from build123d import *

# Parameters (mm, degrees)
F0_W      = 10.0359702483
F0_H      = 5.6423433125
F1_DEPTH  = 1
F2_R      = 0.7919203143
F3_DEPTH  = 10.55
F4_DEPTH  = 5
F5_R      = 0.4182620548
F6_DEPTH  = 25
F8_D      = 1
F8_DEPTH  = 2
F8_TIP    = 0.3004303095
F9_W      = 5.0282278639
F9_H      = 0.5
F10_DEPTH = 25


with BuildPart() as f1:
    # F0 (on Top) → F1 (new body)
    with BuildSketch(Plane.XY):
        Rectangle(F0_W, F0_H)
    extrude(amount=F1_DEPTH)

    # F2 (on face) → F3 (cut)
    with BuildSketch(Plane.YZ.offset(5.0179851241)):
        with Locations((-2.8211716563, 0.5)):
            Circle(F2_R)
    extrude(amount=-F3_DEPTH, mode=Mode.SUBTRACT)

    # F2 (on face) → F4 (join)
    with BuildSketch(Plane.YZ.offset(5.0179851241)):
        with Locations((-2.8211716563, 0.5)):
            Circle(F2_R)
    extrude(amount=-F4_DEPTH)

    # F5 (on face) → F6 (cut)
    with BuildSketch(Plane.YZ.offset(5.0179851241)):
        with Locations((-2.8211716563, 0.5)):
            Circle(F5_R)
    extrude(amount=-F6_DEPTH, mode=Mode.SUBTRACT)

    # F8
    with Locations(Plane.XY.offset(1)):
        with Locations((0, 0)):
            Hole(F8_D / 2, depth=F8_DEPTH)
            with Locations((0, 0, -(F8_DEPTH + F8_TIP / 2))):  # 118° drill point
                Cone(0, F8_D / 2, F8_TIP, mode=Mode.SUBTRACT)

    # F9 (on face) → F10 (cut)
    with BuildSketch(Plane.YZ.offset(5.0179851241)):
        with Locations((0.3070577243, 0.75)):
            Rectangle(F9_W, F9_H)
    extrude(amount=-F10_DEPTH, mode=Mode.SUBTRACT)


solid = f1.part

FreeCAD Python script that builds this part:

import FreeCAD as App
import Part
import Sketcher

V = App.Vector

doc = App.newDocument("Part")
body = doc.addObject("PartDesign::Body", "Body")

# Sketch on XY plane
sketch1 = body.newObject("Sketcher::SketchObject", "Sketch")
sketch1.AttachmentSupport = (doc.getObject("XY_Plane"), [""])
sketch1.MapMode = "FlatFace"
sketch1.addGeometry([
    Part.LineSegment(V(-5, 3, 0), V(-5, -3, 0)),
    Part.LineSegment(V(-5, -3, 0), V(5, -3, 0)),
    Part.LineSegment(V(5, -3, 0), V(5, 3, 0)),
    Part.LineSegment(V(5, 3, 0), V(-5, 3, 0)),
], False)
sketch1.addConstraint([
    Sketcher.Constraint("Coincident", 0, 2, 1, 1),
    Sketcher.Constraint("Coincident", 1, 2, 2, 1),
    Sketcher.Constraint("Coincident", 2, 2, 3, 1),
    Sketcher.Constraint("Coincident", 3, 2, 0, 1),
    Sketcher.Constraint("Vertical", 0),
    Sketcher.Constraint("Horizontal", 1),
    Sketcher.Constraint("Vertical", 2),
    Sketcher.Constraint("Horizontal", 3),
    Sketcher.Constraint("Symmetric", 0, 2, 2, 2, -1, 1),
    Sketcher.Constraint("DistanceX", 1, 1, 1, 2, 10.03597),
    Sketcher.Constraint("DistanceY", 0, 2, 0, 1, 5.642343),
])
pad1 = body.newObject("PartDesign::Pad", "Pad")
pad1.Profile = sketch1
pad1.Length = 1

# Sketch on YZ plane
sketch2 = body.newObject("Sketcher::SketchObject", "Sketch001")
sketch2.AttachmentSupport = (doc.getObject("YZ_Plane"), [""])
sketch2.MapMode = "FlatFace"
sketch2.AttachmentOffset = App.Placement(V(0, 0, 5.017985), App.Rotation())
sketch2.addGeometry(Part.Circle(V(-2.8, 0.5, 0), V(0, 0, 1), 0.8), False)
sketch2.addConstraint([
    Sketcher.Constraint("DistanceY", -1, 1, 0, 3, 0.5),
    Sketcher.Constraint("Diameter", 0, 1.583841),
    Sketcher.Constraint("DistanceX", 0, 3, -1, 1, 2.821172),
])
pocket1 = body.newObject("PartDesign::Pocket", "Pocket")
pocket1.Profile = sketch2
pocket1.Length = 10.55

# Sketch on YZ plane
sketch3 = body.newObject("Sketcher::SketchObject", "Sketch002")
sketch3.AttachmentSupport = (doc.getObject("YZ_Plane"), [""])
sketch3.MapMode = "FlatFace"
sketch3.AttachmentOffset = App.Placement(V(0, 0, 5.017985), App.Rotation())
sketch3.addGeometry(Part.Circle(V(-2.8, 0.5, 0), V(0, 0, 1), 0.8), False)
sketch3.addConstraint([
    Sketcher.Constraint("DistanceY", -1, 1, 0, 3, 0.5),
    Sketcher.Constraint("Diameter", 0, 1.583841),
    Sketcher.Constraint("DistanceX", 0, 3, -1, 1, 2.821172),
])
pad2 = body.newObject("PartDesign::Pad", "Pad001")
pad2.Profile = sketch3
pad2.Length = 5
pad2.Reversed = True

# Sketch on YZ plane
sketch4 = body.newObject("Sketcher::SketchObject", "Sketch003")
sketch4.AttachmentSupport = (doc.getObject("YZ_Plane"), [""])
sketch4.MapMode = "FlatFace"
sketch4.AttachmentOffset = App.Placement(V(0, 0, 5.017985), App.Rotation())
sketch4.addGeometry(Part.Circle(V(-2.82, 0.5, 0), V(0, 0, 1), 0.42), False)
sketch4.addConstraint([
    Sketcher.Constraint("DistanceY", -1, 1, 0, 3, 0.5),
    Sketcher.Constraint("Diameter", 0, 0.836524),
    Sketcher.Constraint("DistanceX", 0, 3, -1, 1, 2.821172),
])
pocket2 = body.newObject("PartDesign::Pocket", "Pocket001")
pocket2.Profile = sketch4
pocket2.Length = 25

# Sketch on XY plane
sketch5 = body.newObject("Sketcher::SketchObject", "Sketch004")
sketch5.AttachmentSupport = (doc.getObject("XY_Plane"), [""])
sketch5.MapMode = "FlatFace"
sketch5.AttachmentOffset = App.Placement(V(0, 0, 1), App.Rotation())
sketch5.addGeometry(Part.Circle(V(0, 0, 0), V(0, 0, 1), 0.5), False)
sketch5.addConstraint([
    Sketcher.Constraint("Coincident", 0, 3, -1, 1),
    Sketcher.Constraint("Diameter", 0, 1.0),
])
doc.recompute()
hole = body.newObject("PartDesign::Hole", "Hole")
hole.Profile = sketch5
hole.ThreadType = "None"
hole.Diameter = 1
hole.DepthType = "Dimension"
hole.Depth = 2
hole.DrillPoint = "Angled"
hole.DrillPointAngle = 118

# Sketch on YZ plane
sketch6 = body.newObject("Sketcher::SketchObject", "Sketch005")
sketch6.AttachmentSupport = (doc.getObject("YZ_Plane"), [""])
sketch6.MapMode = "FlatFace"
sketch6.AttachmentOffset = App.Placement(V(0, 0, 5.017985), App.Rotation())
sketch6.addGeometry([
    Part.LineSegment(V(-2.2, 1, 0), V(-2.2, 0.5, 0)),
    Part.LineSegment(V(-2.2, 0.5, 0), V(2.8, 0.5, 0)),
    Part.LineSegment(V(2.8, 0.5, 0), V(2.8, 1, 0)),
    Part.LineSegment(V(2.8, 1, 0), V(-2.2, 1, 0)),
], False)
sketch6.addConstraint([
    Sketcher.Constraint("Coincident", 0, 2, 1, 1),
    Sketcher.Constraint("Coincident", 1, 2, 2, 1),
    Sketcher.Constraint("Coincident", 2, 2, 3, 1),
    Sketcher.Constraint("Coincident", 3, 2, 0, 1),
    Sketcher.Constraint("Vertical", 0),
    Sketcher.Constraint("Horizontal", 1),
    Sketcher.Constraint("Vertical", 2),
    Sketcher.Constraint("Horizontal", 3),
    Sketcher.Constraint("DistanceY", 0, 2, 0, 1, 0.5),
    Sketcher.Constraint("DistanceY", -1, 1, 2, 2, 1.0),
    Sketcher.Constraint("DistanceX", 1, 1, 1, 2, 5.028228),
    Sketcher.Constraint("DistanceX", -1, 1, 1, 2, 2.821172),
])
pocket3 = body.newObject("PartDesign::Pocket", "Pocket002")
pocket3.Profile = sketch6
pocket3.Length = 25

doc.recompute()
